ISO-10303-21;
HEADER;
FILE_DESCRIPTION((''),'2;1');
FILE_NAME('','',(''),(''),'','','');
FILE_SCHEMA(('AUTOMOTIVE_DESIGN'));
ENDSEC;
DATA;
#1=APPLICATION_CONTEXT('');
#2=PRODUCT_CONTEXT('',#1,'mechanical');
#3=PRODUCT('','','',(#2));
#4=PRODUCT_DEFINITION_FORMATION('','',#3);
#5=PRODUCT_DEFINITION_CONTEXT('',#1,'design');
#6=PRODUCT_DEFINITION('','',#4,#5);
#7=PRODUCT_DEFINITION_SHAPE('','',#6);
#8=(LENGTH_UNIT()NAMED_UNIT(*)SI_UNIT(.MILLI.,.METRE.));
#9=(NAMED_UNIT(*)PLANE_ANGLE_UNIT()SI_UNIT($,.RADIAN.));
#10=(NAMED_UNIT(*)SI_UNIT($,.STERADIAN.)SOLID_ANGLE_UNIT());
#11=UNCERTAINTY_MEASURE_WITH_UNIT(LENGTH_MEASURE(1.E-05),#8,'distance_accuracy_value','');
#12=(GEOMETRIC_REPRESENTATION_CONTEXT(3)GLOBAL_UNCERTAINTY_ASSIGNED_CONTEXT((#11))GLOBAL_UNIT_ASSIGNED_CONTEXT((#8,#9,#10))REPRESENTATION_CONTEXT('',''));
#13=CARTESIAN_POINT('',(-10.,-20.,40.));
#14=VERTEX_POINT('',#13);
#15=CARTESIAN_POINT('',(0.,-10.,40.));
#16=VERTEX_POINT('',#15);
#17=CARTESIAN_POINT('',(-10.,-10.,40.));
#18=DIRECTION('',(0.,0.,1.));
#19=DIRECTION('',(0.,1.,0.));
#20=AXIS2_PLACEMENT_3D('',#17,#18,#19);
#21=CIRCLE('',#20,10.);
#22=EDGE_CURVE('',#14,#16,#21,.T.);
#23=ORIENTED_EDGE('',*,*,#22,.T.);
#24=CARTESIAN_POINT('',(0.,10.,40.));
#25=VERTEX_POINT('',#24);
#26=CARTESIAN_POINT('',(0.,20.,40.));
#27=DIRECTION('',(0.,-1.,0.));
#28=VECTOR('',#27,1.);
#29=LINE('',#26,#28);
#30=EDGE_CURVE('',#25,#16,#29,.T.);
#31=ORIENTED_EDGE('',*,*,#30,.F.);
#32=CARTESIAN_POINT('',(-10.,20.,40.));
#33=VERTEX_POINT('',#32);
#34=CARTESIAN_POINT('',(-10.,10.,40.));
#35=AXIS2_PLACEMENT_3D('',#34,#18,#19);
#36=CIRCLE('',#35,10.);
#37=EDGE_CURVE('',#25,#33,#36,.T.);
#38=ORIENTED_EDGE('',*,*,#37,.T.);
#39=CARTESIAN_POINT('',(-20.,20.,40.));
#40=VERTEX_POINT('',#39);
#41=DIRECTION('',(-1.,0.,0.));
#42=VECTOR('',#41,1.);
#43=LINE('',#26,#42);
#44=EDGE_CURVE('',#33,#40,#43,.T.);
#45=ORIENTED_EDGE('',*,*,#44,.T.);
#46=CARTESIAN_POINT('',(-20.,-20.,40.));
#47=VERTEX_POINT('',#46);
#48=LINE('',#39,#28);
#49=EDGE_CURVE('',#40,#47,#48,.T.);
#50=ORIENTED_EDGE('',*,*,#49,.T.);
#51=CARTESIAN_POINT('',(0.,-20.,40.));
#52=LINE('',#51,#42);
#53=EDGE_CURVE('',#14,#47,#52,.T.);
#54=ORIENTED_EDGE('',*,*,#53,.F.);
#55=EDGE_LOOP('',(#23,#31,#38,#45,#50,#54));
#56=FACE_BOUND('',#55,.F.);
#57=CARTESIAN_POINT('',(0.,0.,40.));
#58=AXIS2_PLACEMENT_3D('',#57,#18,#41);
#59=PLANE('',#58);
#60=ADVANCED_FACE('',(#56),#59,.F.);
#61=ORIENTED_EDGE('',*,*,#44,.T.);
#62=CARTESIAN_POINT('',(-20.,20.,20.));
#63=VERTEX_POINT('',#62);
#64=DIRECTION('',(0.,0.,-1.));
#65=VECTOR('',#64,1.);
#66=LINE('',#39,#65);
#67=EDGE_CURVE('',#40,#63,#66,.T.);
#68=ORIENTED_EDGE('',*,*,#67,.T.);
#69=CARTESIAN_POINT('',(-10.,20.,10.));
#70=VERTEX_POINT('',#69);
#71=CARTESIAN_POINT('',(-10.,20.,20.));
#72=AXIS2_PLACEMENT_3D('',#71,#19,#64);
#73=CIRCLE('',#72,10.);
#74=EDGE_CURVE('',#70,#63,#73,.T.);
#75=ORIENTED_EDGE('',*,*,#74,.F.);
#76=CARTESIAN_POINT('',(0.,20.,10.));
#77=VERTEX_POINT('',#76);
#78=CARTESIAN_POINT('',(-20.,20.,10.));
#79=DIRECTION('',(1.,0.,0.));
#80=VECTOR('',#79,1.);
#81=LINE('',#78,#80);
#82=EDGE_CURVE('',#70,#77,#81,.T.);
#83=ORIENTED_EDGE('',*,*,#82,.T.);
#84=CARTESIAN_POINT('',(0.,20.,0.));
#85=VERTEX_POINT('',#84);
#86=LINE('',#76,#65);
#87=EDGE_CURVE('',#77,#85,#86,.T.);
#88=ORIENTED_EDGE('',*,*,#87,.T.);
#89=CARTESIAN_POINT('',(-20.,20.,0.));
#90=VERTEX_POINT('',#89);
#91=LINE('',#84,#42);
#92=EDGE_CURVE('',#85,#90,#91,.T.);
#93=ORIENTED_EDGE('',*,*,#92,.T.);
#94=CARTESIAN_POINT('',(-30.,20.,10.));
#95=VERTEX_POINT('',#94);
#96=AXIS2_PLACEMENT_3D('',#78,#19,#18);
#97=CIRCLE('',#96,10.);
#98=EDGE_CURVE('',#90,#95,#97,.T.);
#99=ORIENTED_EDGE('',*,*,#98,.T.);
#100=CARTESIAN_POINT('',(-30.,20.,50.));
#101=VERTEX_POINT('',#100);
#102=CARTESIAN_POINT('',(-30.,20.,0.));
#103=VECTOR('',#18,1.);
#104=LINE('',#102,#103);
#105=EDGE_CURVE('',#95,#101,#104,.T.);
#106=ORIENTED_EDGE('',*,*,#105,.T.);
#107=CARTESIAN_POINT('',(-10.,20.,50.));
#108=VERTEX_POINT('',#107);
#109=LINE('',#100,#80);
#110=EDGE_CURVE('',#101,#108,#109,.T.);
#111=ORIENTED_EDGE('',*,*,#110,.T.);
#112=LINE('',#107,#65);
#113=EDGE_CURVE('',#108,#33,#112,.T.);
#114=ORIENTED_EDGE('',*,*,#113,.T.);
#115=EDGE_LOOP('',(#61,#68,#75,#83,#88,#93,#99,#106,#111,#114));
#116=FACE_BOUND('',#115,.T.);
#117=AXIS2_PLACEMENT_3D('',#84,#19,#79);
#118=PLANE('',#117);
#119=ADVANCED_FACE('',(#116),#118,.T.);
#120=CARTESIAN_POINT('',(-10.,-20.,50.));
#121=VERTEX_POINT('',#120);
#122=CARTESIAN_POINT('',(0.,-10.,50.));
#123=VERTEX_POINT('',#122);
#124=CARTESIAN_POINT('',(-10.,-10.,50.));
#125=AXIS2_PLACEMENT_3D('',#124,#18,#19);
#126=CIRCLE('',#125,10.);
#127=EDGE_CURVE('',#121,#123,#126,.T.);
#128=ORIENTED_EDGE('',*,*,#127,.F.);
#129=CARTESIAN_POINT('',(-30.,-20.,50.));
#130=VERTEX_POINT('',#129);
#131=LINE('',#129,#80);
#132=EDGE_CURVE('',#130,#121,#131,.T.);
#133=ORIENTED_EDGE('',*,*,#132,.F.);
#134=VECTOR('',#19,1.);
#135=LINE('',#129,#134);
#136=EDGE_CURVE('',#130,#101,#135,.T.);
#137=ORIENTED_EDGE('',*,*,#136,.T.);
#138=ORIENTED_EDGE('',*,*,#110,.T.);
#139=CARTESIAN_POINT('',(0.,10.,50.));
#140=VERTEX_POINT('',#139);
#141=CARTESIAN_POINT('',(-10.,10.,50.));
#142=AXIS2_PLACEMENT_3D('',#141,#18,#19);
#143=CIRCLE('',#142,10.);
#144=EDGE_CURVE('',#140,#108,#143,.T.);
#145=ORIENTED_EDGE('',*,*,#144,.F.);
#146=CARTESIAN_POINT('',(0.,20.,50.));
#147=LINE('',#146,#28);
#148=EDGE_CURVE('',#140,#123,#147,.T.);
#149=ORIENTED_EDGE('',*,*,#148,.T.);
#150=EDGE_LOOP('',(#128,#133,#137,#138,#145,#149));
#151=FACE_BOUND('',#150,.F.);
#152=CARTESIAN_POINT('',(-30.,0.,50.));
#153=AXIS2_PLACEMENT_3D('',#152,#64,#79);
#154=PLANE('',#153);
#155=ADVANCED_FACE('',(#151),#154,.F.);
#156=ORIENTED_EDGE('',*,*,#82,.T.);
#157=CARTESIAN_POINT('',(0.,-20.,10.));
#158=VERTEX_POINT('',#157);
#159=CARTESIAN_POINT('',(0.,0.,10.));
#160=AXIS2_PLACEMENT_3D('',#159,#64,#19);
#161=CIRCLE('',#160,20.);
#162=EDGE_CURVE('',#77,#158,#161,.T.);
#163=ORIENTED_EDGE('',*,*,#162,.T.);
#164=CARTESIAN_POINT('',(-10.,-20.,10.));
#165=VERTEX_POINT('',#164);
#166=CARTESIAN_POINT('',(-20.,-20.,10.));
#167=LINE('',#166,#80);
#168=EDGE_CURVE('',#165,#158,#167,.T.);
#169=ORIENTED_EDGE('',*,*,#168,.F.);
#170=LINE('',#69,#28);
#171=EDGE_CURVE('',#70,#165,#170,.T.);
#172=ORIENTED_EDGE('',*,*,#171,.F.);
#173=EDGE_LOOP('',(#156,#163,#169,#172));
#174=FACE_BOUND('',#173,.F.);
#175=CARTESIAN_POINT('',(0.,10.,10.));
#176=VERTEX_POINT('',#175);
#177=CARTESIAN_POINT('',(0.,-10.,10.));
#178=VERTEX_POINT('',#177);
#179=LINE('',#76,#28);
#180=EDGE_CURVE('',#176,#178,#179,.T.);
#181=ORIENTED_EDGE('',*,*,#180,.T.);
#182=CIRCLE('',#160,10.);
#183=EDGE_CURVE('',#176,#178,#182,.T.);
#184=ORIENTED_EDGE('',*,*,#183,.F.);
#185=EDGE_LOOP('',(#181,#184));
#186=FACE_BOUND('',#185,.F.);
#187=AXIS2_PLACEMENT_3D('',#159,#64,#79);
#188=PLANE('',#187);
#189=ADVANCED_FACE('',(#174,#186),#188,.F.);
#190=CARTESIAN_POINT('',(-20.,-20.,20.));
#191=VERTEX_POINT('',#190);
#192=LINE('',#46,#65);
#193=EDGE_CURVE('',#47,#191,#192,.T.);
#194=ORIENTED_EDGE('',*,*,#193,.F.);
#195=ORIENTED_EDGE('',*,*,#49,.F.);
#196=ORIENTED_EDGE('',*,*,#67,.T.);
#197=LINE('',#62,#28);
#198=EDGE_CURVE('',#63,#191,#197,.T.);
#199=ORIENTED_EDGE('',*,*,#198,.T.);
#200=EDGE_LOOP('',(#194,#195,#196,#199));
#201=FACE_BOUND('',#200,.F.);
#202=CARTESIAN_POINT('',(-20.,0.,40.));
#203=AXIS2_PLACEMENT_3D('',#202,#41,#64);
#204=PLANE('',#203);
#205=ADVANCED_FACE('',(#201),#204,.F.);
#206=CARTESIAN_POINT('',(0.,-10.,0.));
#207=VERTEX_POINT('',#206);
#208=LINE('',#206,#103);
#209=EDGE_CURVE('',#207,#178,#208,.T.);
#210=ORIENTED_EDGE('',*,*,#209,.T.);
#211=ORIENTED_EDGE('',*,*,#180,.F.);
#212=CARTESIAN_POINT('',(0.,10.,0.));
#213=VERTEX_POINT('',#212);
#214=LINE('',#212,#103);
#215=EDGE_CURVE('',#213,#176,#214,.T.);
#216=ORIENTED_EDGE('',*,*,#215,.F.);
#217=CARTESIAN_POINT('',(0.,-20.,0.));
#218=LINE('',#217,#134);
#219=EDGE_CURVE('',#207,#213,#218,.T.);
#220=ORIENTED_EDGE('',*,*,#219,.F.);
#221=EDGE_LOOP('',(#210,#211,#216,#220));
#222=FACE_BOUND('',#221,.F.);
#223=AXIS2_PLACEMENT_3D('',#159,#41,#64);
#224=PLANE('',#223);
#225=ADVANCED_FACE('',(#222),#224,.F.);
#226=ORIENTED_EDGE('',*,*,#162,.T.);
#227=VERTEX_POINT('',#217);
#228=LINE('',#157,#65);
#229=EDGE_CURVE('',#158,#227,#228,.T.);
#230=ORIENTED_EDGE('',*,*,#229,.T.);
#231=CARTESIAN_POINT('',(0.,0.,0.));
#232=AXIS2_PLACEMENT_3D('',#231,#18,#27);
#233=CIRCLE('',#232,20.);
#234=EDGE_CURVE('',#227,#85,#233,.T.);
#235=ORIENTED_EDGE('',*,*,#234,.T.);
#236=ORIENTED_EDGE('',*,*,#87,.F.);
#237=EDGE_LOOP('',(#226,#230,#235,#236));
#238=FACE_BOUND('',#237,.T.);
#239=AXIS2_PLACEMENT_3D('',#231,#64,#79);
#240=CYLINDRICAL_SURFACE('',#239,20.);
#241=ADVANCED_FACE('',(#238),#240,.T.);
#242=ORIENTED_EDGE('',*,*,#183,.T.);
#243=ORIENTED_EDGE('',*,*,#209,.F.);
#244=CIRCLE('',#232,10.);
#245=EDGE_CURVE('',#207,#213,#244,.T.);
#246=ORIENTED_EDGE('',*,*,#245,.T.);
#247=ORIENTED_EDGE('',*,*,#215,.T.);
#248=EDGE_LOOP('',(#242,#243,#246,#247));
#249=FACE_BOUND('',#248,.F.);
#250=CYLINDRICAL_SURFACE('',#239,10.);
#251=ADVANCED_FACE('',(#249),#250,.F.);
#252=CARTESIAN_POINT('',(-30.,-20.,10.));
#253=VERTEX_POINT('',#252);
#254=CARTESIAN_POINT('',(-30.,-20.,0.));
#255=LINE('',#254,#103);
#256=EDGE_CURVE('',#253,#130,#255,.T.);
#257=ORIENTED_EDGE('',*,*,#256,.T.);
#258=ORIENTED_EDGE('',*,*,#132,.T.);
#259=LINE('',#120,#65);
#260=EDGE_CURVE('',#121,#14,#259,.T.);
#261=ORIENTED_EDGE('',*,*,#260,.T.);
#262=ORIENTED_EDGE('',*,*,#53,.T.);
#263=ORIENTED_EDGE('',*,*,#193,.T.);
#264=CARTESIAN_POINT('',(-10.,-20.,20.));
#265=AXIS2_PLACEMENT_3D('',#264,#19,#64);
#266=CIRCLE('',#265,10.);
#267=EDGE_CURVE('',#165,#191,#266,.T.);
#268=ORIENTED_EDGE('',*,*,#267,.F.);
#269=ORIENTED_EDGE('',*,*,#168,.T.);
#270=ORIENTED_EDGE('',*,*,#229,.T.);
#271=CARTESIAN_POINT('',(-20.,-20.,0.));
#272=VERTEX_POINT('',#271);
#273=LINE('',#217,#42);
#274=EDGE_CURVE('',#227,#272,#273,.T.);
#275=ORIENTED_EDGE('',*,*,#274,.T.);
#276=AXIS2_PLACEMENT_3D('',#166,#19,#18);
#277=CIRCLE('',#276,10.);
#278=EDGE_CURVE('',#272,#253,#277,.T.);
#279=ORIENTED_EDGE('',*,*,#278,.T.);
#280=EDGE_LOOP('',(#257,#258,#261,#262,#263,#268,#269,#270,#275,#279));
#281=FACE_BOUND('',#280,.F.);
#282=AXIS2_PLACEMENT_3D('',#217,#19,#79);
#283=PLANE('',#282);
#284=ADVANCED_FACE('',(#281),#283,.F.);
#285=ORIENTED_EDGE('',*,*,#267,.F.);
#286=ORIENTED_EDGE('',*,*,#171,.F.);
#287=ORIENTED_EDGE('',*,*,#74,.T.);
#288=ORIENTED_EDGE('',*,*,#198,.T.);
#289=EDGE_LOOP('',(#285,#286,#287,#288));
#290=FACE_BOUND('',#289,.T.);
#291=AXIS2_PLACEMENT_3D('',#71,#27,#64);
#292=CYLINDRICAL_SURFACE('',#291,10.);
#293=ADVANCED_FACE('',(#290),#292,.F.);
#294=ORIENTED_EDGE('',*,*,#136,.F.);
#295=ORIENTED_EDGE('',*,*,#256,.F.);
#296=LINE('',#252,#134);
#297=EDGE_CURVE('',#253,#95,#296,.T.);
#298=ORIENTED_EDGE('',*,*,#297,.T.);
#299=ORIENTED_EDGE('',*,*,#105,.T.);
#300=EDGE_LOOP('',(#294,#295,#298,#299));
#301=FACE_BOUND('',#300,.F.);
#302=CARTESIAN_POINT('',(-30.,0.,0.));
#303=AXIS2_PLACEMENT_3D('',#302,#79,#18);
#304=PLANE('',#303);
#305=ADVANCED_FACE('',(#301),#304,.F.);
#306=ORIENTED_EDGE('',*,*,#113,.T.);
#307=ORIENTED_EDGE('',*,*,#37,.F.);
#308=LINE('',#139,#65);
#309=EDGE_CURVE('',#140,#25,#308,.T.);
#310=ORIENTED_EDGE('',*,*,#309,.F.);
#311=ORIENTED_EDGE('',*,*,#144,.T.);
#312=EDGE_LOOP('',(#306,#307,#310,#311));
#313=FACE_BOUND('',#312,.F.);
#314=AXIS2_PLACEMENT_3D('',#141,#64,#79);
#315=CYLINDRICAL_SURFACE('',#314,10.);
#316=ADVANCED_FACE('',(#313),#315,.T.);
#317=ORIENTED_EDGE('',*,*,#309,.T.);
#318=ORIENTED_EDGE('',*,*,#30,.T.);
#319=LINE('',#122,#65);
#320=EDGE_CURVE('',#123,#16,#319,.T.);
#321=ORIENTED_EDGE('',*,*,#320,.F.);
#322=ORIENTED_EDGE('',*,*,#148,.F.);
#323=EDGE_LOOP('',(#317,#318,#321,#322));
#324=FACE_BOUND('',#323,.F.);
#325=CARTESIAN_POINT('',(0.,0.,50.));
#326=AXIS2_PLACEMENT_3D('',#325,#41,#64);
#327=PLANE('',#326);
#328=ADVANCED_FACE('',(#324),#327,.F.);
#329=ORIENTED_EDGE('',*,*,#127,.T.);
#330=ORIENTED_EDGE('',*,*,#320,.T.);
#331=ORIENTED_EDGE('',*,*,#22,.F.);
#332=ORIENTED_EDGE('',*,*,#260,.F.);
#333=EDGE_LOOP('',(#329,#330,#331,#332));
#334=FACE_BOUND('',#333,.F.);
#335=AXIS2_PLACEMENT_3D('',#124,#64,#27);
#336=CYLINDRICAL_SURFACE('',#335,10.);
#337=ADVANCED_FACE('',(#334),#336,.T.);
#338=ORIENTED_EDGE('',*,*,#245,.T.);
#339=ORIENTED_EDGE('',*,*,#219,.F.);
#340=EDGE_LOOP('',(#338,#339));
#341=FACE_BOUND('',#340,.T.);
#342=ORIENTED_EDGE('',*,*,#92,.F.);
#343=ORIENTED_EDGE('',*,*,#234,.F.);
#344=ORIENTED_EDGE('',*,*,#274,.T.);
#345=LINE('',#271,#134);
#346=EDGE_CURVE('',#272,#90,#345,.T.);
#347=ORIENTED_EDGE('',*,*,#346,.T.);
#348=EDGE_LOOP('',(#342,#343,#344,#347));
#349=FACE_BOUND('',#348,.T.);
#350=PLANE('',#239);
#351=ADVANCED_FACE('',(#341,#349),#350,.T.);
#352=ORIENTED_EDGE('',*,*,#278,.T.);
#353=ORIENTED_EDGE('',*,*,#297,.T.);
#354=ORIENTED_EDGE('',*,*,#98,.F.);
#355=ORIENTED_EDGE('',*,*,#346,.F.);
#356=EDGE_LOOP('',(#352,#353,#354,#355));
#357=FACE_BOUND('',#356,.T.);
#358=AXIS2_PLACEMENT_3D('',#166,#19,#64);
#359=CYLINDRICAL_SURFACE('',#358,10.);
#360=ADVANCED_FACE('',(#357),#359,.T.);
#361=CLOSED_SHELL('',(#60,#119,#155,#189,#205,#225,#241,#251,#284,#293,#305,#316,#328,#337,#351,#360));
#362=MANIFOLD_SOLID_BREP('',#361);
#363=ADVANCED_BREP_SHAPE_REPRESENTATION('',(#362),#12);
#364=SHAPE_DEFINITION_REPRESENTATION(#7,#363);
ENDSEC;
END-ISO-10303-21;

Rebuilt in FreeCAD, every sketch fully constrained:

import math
import FreeCAD as App
import Part
import Sketcher
from FreeCAD import Vector
Q = App.Units.Quantity


def edges_at(feature, points):
    """Names of the edges that pass closest to the given points."""
    edges = feature.Shape.Edges
    near = lambda p: min(range(len(edges)), key=lambda i: edges[i].distToShape(Part.Vertex(*p))[0])
    return sorted({f"Edge{near(p) + 1}" for p in points})

doc = App.newDocument("Part")
body = doc.addObject("PartDesign::Body", "Body")

# Sketch on XZ plane
sketch1 = doc.addObject("Sketcher::SketchObject", "Sketch")
body.addObject(sketch1)
sketch1.AttachmentSupport = (doc.XZ_Plane, [""])
sketch1.MapMode = "FlatFace"
sketch1.addGeometry([
    Part.LineSegment(Vector(0, 10, 0), Vector(0, 0, 0)),  # 0
    Part.LineSegment(Vector(0, 0, 0), Vector(-30, 0, 0)),  # 1
    Part.LineSegment(Vector(-30, 0, 0), Vector(-30, 50, 0)),  # 2
    Part.LineSegment(Vector(-30, 50, 0), Vector(0, 50, 0)),  # 3
    Part.LineSegment(Vector(0, 50, 0), Vector(0, 40, 0)),  # 4
    Part.LineSegment(Vector(0, 40, 0), Vector(-20, 40, 0)),  # 5
    Part.LineSegment(Vector(-20, 40, 0), Vector(-20, 10, 0)),  # 6
    Part.LineSegment(Vector(-20, 10, 0), Vector(0, 10, 0)),  # 7
], False)
sketch1.addConstraint([
    Sketcher.Constraint("Coincident", 0, 2, 1, 1),
    Sketcher.Constraint("Coincident", 1, 2, 2, 1),
    Sketcher.Constraint("Coincident", 2, 2, 3, 1),
    Sketcher.Constraint("Coincident", 3, 2, 4, 1),
    Sketcher.Constraint("Coincident", 4, 2, 5, 1),
    Sketcher.Constraint("Coincident", 5, 2, 6, 1),
    Sketcher.Constraint("Coincident", 6, 2, 7, 1),
    Sketcher.Constraint("Coincident", 7, 2, 0, 1),
    Sketcher.Constraint("Vertical", 0),
    Sketcher.Constraint("Horizontal", 1),
    Sketcher.Constraint("Vertical", 2),
    Sketcher.Constraint("Horizontal", 3),
    Sketcher.Constraint("Vertical", 4),
    Sketcher.Constraint("Horizontal", 5),
    Sketcher.Constraint("Vertical", 6),
    Sketcher.Constraint("Horizontal", 7),
    Sketcher.Constraint("Coincident", 0, 2, -1, 1),
    Sketcher.Constraint("PointOnObject", 3, 2, -2),
    Sketcher.Constraint("Equal", 0, 4),
    Sketcher.Constraint("Equal", 3, 6),
    Sketcher.Constraint("DistanceX", 1, 2, 1, 1, Q("30 mm")),
    Sketcher.Constraint("DistanceX", 5, 2, 5, 1, Q("20 mm")),
    Sketcher.Constraint("DistanceY", 0, 2, 0, 1, Q("10 mm")),
])
pad1 = doc.addObject("PartDesign::Pad", "Pad")
body.addObject(pad1)
pad1.Profile = sketch1
pad1.Length = 40
pad1.Midplane = True

# Sketch on XY plane
sketch2 = doc.addObject("Sketcher::SketchObject", "Sketch001")
body.addObject(sketch2)
sketch2.AttachmentSupport = (doc.XY_Plane, [""])
sketch2.MapMode = "FlatFace"
sketch2.addGeometry([
    Part.ArcOfCircle(Part.Circle(Vector(0, 0, 0), Vector(0, 0, 1), 20), math.radians(-90), math.radians(90)),
    Part.LineSegment(Vector(0, -20, 0), Vector(0, -10, 0)),
    Part.ArcOfCircle(Part.Circle(Vector(0, 0, 0), Vector(0, 0, 1), 10), math.radians(-90), math.radians(90)),
    Part.LineSegment(Vector(0, 10, 0), Vector(0, 20, 0)),
], False)
sketch2.addConstraint([
    Sketcher.Constraint("Coincident", 0, 1, 1, 1),
    Sketcher.Constraint("Coincident", 1, 2, 2, 1),
    Sketcher.Constraint("Coincident", 2, 2, 3, 1),
    Sketcher.Constraint("Coincident", 3, 2, 0, 2),
    Sketcher.Constraint("Vertical", 1),
    Sketcher.Constraint("Vertical", 3),
    Sketcher.Constraint("Coincident", 0, 3, -1, 1),
    Sketcher.Constraint("Coincident", 2, 3, -1, 1),
    Sketcher.Constraint("PointOnObject", 0, 1, -2),
    Sketcher.Constraint("PointOnObject", 2, 2, -2),
    Sketcher.Constraint("Radius", 0, Q("20 mm")),
    Sketcher.Constraint("Radius", 2, Q("10 mm")),
])
pad2 = doc.addObject("PartDesign::Pad", "Pad001")
body.addObject(pad2)
pad2.Profile = sketch2
pad2.Length = 10

# Sketch on XY plane
sketch3 = doc.addObject("Sketcher::SketchObject", "Sketch002")
body.addObject(sketch3)
sketch3.AttachmentSupport = (doc.XY_Plane, [""])
sketch3.MapMode = "FlatFace"
sketch3.addGeometry([
    Part.ArcOfCircle(Part.Circle(Vector(0, 0, 0), Vector(0, 0, 1), 10), math.radians(-90), math.radians(90)),
    Part.LineSegment(Vector(0, -10, 0), Vector(0, 10, 0)),
], False)
sketch3.addConstraint([
    Sketcher.Constraint("Coincident", 0, 1, 1, 1),
    Sketcher.Constraint("Coincident", 1, 2, 0, 2),
    Sketcher.Constraint("Vertical", 1),
    Sketcher.Constraint("Coincident", 0, 3, -1, 1),
    Sketcher.Constraint("PointOnObject", 0, 1, -2),
    Sketcher.Constraint("Radius", 0, Q("10 mm")),
])
pocket1 = doc.addObject("PartDesign::Pocket", "Pocket")
body.addObject(pocket1)
pocket1.Profile = sketch3
pocket1.Length = 15
pocket1.Reversed = True
doc.recompute()

fillet = doc.addObject("PartDesign::Fillet", "Fillet")
body.addObject(fillet)
fillet.Base = (pocket1, edges_at(pocket1, [(-20, 0, 10), (-30, 0, 0)]))
fillet.Radius = 10
doc.recompute()

fillet2 = doc.addObject("PartDesign::Fillet", "Fillet001")
body.addObject(fillet2)
fillet2.Base = (fillet, edges_at(fillet, [(0, -20, 45), (0, 20, 45)]))
fillet2.Radius = 10

doc.recompute()
